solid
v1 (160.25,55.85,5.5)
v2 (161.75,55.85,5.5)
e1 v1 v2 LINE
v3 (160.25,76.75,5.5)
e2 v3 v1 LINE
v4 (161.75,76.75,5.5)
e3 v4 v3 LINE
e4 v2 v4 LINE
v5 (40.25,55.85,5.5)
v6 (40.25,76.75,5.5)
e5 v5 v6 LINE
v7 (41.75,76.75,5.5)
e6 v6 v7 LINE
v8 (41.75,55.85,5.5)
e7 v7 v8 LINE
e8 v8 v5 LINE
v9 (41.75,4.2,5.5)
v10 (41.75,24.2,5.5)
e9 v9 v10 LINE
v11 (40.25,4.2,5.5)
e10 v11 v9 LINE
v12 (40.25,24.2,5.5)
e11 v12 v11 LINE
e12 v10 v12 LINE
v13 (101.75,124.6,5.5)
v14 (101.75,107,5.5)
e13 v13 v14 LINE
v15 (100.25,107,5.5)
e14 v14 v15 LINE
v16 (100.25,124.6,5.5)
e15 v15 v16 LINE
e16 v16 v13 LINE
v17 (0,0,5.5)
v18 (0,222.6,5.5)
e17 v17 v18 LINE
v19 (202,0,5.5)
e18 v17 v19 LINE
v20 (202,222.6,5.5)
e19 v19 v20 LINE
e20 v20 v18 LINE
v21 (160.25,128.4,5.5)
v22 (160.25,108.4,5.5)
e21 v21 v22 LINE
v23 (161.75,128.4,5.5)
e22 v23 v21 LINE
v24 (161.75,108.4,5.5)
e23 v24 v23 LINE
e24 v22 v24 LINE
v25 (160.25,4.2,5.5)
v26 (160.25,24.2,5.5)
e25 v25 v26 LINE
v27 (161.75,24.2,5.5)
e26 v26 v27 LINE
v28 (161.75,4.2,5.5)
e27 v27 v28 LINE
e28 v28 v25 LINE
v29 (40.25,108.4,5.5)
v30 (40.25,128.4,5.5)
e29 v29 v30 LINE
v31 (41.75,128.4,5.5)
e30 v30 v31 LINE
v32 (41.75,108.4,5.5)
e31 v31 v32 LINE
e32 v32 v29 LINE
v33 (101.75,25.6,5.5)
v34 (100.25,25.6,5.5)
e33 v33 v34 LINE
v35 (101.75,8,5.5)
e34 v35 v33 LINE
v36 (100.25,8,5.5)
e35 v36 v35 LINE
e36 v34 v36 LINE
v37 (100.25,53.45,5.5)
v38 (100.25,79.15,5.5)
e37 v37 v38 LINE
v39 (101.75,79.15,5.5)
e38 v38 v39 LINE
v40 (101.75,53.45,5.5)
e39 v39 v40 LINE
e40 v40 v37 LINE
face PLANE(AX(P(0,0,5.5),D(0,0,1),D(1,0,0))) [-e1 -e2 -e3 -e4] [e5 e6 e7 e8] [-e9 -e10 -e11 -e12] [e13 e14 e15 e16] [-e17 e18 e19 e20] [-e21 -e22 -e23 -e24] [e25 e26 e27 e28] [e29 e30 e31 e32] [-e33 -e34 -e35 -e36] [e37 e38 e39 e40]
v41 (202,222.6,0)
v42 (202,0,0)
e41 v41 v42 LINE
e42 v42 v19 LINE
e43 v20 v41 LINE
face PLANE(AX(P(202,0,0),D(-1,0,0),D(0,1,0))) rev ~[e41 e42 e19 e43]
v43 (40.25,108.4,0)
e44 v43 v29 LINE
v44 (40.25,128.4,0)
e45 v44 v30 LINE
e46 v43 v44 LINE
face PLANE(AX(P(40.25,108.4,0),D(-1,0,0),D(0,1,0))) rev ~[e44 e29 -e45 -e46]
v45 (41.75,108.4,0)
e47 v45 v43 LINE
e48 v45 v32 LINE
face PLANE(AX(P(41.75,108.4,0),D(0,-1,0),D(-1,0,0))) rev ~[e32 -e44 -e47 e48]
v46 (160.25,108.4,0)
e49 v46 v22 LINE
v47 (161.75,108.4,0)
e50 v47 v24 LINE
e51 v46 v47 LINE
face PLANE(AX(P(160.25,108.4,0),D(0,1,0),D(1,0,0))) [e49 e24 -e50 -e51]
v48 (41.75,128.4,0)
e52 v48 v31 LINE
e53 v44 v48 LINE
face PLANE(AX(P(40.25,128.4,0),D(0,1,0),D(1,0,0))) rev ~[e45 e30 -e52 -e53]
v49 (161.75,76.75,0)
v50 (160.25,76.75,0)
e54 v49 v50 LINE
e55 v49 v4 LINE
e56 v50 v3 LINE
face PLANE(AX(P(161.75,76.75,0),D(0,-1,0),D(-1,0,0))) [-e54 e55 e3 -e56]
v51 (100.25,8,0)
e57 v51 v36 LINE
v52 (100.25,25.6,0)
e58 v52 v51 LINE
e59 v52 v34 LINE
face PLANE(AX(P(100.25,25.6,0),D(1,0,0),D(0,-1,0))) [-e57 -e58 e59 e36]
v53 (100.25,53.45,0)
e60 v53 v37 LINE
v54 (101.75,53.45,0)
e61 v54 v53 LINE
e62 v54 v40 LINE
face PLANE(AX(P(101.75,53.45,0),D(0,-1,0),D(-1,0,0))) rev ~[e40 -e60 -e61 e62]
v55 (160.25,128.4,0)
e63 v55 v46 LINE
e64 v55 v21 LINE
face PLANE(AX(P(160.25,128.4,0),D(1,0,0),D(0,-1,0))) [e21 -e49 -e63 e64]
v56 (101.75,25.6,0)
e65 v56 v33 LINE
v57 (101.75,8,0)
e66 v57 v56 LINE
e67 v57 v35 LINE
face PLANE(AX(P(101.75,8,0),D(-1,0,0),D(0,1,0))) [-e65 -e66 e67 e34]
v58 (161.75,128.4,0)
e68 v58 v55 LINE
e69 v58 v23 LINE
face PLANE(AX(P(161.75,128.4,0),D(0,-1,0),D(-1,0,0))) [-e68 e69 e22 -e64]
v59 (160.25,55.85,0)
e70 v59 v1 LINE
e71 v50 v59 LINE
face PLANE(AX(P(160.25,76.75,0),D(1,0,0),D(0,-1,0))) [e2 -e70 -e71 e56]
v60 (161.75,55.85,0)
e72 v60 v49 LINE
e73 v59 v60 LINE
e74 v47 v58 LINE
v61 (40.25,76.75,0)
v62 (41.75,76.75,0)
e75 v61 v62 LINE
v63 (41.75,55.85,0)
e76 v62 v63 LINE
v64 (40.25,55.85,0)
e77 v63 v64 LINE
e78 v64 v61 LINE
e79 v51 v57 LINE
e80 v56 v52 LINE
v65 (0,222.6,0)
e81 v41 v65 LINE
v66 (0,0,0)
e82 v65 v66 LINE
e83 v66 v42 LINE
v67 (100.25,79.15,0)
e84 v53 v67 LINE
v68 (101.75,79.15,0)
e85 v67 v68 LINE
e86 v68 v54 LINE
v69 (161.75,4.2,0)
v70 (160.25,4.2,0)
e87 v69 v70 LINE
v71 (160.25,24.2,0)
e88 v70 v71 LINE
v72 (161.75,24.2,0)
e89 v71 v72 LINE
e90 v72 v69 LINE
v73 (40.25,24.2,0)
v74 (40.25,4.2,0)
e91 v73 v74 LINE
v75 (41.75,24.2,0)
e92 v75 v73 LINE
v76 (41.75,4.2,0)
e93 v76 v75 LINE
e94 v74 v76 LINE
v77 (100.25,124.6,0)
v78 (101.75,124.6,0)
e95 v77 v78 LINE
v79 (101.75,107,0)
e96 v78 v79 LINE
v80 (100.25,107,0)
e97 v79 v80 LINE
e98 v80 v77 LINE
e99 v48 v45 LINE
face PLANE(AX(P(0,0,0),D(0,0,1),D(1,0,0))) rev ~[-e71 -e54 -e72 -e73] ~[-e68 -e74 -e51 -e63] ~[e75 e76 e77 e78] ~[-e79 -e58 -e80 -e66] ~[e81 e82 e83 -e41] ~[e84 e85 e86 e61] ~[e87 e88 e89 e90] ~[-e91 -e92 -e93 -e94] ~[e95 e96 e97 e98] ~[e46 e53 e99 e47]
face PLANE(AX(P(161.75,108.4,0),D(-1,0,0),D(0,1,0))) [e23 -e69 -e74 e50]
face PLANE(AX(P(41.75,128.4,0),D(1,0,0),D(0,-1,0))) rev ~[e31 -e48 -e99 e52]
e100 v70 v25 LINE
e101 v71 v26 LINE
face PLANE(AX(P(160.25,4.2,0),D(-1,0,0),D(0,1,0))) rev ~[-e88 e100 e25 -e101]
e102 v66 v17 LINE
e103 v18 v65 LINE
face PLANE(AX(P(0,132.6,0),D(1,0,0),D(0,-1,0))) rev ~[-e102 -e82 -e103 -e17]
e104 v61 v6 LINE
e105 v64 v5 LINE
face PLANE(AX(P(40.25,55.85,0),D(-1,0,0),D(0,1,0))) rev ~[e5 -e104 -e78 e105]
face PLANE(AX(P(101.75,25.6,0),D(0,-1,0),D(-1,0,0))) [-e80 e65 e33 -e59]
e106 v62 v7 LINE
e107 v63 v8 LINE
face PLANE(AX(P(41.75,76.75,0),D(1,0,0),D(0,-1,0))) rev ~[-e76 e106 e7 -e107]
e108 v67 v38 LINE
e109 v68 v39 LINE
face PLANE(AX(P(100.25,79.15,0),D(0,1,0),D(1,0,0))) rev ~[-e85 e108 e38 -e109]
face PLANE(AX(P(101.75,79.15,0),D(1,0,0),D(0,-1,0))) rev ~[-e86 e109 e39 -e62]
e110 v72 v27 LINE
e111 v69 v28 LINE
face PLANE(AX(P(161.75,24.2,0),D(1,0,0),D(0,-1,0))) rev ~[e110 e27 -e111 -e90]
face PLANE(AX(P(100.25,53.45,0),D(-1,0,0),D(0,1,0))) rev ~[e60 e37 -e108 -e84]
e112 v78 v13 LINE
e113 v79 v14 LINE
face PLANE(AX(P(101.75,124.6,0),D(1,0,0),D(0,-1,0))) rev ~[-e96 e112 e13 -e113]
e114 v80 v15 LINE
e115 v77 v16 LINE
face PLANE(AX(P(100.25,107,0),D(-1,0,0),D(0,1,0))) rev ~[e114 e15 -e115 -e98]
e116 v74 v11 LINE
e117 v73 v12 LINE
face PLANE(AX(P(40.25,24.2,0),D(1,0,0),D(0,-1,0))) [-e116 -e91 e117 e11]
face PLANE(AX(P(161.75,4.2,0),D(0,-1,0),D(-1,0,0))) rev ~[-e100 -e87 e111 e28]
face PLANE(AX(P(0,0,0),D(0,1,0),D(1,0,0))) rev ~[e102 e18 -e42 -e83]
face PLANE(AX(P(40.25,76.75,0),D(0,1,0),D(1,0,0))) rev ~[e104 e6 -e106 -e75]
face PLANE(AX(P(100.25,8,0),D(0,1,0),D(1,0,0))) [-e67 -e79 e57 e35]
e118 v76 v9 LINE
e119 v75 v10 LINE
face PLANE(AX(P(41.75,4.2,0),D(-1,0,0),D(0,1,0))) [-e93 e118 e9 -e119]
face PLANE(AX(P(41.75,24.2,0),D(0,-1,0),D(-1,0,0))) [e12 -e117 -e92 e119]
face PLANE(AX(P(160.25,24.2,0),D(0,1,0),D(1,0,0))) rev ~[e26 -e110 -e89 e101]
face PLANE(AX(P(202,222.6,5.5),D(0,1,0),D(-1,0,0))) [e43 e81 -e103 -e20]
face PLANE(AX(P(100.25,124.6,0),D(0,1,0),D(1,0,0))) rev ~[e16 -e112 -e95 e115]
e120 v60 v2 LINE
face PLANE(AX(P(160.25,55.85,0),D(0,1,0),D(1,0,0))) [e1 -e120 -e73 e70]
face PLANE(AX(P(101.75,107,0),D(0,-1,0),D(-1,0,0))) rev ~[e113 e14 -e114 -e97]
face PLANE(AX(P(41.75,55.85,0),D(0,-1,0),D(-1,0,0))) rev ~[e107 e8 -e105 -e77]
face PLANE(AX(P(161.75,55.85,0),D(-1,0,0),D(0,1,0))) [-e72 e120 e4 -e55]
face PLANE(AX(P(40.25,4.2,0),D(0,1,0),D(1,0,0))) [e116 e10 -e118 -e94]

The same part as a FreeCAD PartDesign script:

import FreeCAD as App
import Part
import Sketcher
Q = App.Units.Quantity


def add_polygon(sketch, points):
    """Adds a closed chain of lines whose ends are joined by coincident constraints."""
    first, n = sketch.GeometryCount, len(points)
    for a, b in zip(points, points[1:] + points[:1]):
        sketch.addGeometry(Part.LineSegment(App.Vector(*a, 0), App.Vector(*b, 0)), False)
    for i in range(n):
        sketch.addConstraint(Sketcher.Constraint("Coincident", first + i, 2, first + (i + 1) % n, 1))

doc = App.newDocument("Part")
params = doc.addObject("Spreadsheet::Sheet", "Params")
for row, (alias, value) in enumerate([
    ("sketch1_height", "20 mm"),
    ("sketch1_width", "1.5 mm"),
    ("sketch1_height2", "132.6 mm"),
    ("sketch1_height3", "17.6 mm"),
    ("sketch1_height4", "20.9 mm"),
    ("pad1_length", "5.5 mm"),
    ("sketch2_height", "90 mm"),
    ("sketch2_width", "202 mm"),
    ("pad2_length", "5.5 mm"),
], start=1):
    params.set(f"A{row}", alias)
    params.set(f"B{row}", "=" + value)
    params.setAlias(f"B{row}", alias)

body = doc.addObject("PartDesign::Body", "Body")

sketch1 = body.newObject("Sketcher::SketchObject", "Sketch")
sketch1.AttachmentSupport = (doc.getObject("XY_Plane"), [""])
sketch1.MapMode = "FlatFace"
add_polygon(sketch1, [(0, 132.6), (0, 0), (202, 0), (202, 132.6)])
add_polygon(sketch1, [(40.2, 4.2), (40.2, 24.2), (41.8, 24.2), (41.8, 4.2)])
add_polygon(sketch1, [(100.2, 8), (100.2, 25.6), (101.8, 25.6), (101.8, 8)])
add_polygon(sketch1, [(160.2, 24.2), (161.8, 24.2), (161.8, 4.2), (160.2, 4.2)])
add_polygon(sketch1, [(41.8, 55.9), (40.2, 55.9), (40.2, 76.8), (41.8, 76.8)])
add_polygon(sketch1, [(41.8, 108.4), (40.2, 108.4), (40.2, 128.4), (41.8, 128.4)])
add_polygon(sketch1, [(101.8, 53.5), (100.2, 53.5), (100.2, 79.2), (101.8, 79.2)])
add_polygon(sketch1, [(161.8, 76.8), (161.8, 55.9), (160.2, 55.9), (160.2, 76.8)])
add_polygon(sketch1, [(101.8, 107), (100.2, 107), (100.2, 124.6), (101.8, 124.6)])
add_polygon(sketch1, [(160.2, 108.4), (160.2, 128.4), (161.8, 128.4), (161.8, 108.4)])
sketch1.addConstraint([
    Sketcher.Constraint("Vertical", 0),
    Sketcher.Constraint("Horizontal", 1),
    Sketcher.Constraint("Vertical", 2),
    Sketcher.Constraint("Horizontal", 3),
    Sketcher.Constraint("Vertical", 4),
    Sketcher.Constraint("Horizontal", 5),
    Sketcher.Constraint("Vertical", 6),
    Sketcher.Constraint("Horizontal", 7),
    Sketcher.Constraint("Vertical", 8),
    Sketcher.Constraint("Horizontal", 9),
    Sketcher.Constraint("Vertical", 10),
    Sketcher.Constraint("Horizontal", 11),
    Sketcher.Constraint("Horizontal", 12),
    Sketcher.Constraint("Vertical", 13),
    Sketcher.Constraint("Horizontal", 14),
    Sketcher.Constraint("Vertical", 15),
    Sketcher.Constraint("Horizontal", 16),
    Sketcher.Constraint("Vertical", 17),
    Sketcher.Constraint("Horizontal", 18),
    Sketcher.Constraint("Vertical", 19),
    Sketcher.Constraint("Horizontal", 20),
    Sketcher.Constraint("Vertical", 21),
    Sketcher.Constraint("Horizontal", 22),
    Sketcher.Constraint("Vertical", 23),
    Sketcher.Constraint("Horizontal", 24),
    Sketcher.Constraint("Vertical", 25),
    Sketcher.Constraint("Horizontal", 26),
    Sketcher.Constraint("Vertical", 27),
    Sketcher.Constraint("Vertical", 28),
    Sketcher.Constraint("Horizontal", 29),
    Sketcher.Constraint("Vertical", 30),
    Sketcher.Constraint("Horizontal", 31),
    Sketcher.Constraint("Horizontal", 32),
    Sketcher.Constraint("Vertical", 33),
    Sketcher.Constraint("Horizontal", 34),
    Sketcher.Constraint("Vertical", 35),
    Sketcher.Constraint("Vertical", 36),
    Sketcher.Constraint("Horizontal", 37),
    Sketcher.Constraint("Vertical", 38),
    Sketcher.Constraint("Horizontal", 39),
    Sketcher.Constraint("Coincident", 0, 2, -1, 1),
    Sketcher.Constraint("Horizontal", 5, 2, 12, 2),
    Sketcher.Constraint("Horizontal", 7, 2, 13, 2),
    Sketcher.Constraint("Horizontal", 19, 2, 28, 2),
    Sketcher.Constraint("Horizontal", 18, 2, 30, 2),
    Sketcher.Constraint("Horizontal", 22, 2, 36, 2),
    Sketcher.Constraint("Horizontal", 23, 2, 38, 2),
    Sketcher.Constraint("Vertical", 7, 2, 16, 2),
    Sketcher.Constraint("Vertical", 6, 2, 18, 2),
    Sketcher.Constraint("Vertical", 17, 2, 20, 2),
    Sketcher.Constraint("Vertical", 19, 2, 22, 2),
    Sketcher.Constraint("Vertical", 11, 2, 24, 2),
    Sketcher.Constraint("Vertical", 10, 2, 26, 2),
    Sketcher.Constraint("Vertical", 13, 2, 28, 2),
    Sketcher.Constraint("Vertical", 15, 2, 29, 2),
    Sketcher.Constraint("Vertical", 25, 2, 32, 2),
    Sketcher.Constraint("Vertical", 27, 2, 34, 2),
    Sketcher.Constraint("Vertical", 30, 2, 36, 2),
    Sketcher.Constraint("Vertical", 31, 2, 37, 2),
    Sketcher.Constraint("Equal", 7, 9),
    Sketcher.Constraint("Equal", 11, 12),
    Sketcher.Constraint("Equal", 15, 21),
    Sketcher.Constraint("Equal", 10, 33),
    Sketcher.Constraint("DistanceY", 4, 1, 4, 2, Q("20 mm")),
    Sketcher.Constraint("DistanceX", 5, 1, 5, 2, Q("1.5 mm")),
    Sketcher.Constraint("DistanceY", 0, 2, 0, 1, Q("132.6 mm")),
    Sketcher.Constraint("DistanceY", 8, 1, 8, 2, Q("17.6 mm")),
    Sketcher.Constraint("DistanceY", 17, 1, 17, 2, Q("20.9 mm")),
    Sketcher.Constraint("DistanceY", 25, 1, 25, 2, Q("25.7 mm")),
    Sketcher.Constraint("DistanceX", 1, 1, 1, 2, Q("202 mm")),
    Sketcher.Constraint("DistanceY", -1, 1, 10, 2, Q("8 mm")),
    Sketcher.Constraint("DistanceY", -1, 1, 32, 2, Q("107 mm")),
    Sketcher.Constraint("DistanceX", 4, 2, 8, 2, Q("60 mm")),
    Sketcher.Constraint("DistanceX", 9, 2, 12, 2, Q("60 mm")),
    Sketcher.Constraint("DistanceY", -1, 1, 4, 2, Q("24.2 mm")),
    Sketcher.Constraint("DistanceY", -1, 1, 20, 2, Q("108.4 mm")),
    Sketcher.Constraint("DistanceY", 24, 2, 19, 2, Q("2.4 mm")),
    Sketcher.Constraint("DistanceX", -1, 1, 4, 2, Q("40.25 mm")),
    Sketcher.Constraint("DistanceY", -1, 1, 16, 2, Q("55.85 mm")),
])
sketch1.setExpression("Constraints[103]", "Params.sketch1_height")
sketch1.setExpression("Constraints[104]", "Params.sketch1_width")
sketch1.setExpression("Constraints[105]", "Params.sketch1_height2")
sketch1.setExpression("Constraints[106]", "Params.sketch1_height3")
sketch1.setExpression("Constraints[107]", "Params.sketch1_height4")
pad1 = body.newObject("PartDesign::Pad", "Pad")
pad1.Profile = sketch1
pad1.setExpression("Length", "Params.pad1_length")

sketch2 = body.newObject("Sketcher::SketchObject", "Sketch001")
sketch2.AttachmentSupport = (doc.getObject("XY_Plane"), [""])
sketch2.MapMode = "FlatFace"
sketch2.AttachmentOffset = App.Placement(App.Vector(0, 0, 5.5), App.Rotation())
add_polygon(sketch2, [(0, 133), (202, 133), (202, 223), (0, 223)])
sketch2.addConstraint([
    Sketcher.Constraint("Horizontal", 0),
    Sketcher.Constraint("Vertical", 1),
    Sketcher.Constraint("Horizontal", 2),
    Sketcher.Constraint("Vertical", 3),
    Sketcher.Constraint("PointOnObject", 2, 2, -2),
    Sketcher.Constraint("DistanceY", 1, 1, 1, 2, Q("90 mm")),
    Sketcher.Constraint("DistanceX", 0, 1, 0, 2, Q("202 mm")),
    Sketcher.Constraint("DistanceY", -1, 1, 0, 2, Q("132.6 mm")),
])
sketch2.setExpression("Constraints[9]", "Params.sketch2_height")
sketch2.setExpression("Constraints[10]", "Params.sketch2_width")
pad2 = body.newObject("PartDesign::Pad", "Pad001")
pad2.Profile = sketch2
pad2.setExpression("Length", "Params.pad2_length")
pad2.Reversed = True

doc.recompute()
